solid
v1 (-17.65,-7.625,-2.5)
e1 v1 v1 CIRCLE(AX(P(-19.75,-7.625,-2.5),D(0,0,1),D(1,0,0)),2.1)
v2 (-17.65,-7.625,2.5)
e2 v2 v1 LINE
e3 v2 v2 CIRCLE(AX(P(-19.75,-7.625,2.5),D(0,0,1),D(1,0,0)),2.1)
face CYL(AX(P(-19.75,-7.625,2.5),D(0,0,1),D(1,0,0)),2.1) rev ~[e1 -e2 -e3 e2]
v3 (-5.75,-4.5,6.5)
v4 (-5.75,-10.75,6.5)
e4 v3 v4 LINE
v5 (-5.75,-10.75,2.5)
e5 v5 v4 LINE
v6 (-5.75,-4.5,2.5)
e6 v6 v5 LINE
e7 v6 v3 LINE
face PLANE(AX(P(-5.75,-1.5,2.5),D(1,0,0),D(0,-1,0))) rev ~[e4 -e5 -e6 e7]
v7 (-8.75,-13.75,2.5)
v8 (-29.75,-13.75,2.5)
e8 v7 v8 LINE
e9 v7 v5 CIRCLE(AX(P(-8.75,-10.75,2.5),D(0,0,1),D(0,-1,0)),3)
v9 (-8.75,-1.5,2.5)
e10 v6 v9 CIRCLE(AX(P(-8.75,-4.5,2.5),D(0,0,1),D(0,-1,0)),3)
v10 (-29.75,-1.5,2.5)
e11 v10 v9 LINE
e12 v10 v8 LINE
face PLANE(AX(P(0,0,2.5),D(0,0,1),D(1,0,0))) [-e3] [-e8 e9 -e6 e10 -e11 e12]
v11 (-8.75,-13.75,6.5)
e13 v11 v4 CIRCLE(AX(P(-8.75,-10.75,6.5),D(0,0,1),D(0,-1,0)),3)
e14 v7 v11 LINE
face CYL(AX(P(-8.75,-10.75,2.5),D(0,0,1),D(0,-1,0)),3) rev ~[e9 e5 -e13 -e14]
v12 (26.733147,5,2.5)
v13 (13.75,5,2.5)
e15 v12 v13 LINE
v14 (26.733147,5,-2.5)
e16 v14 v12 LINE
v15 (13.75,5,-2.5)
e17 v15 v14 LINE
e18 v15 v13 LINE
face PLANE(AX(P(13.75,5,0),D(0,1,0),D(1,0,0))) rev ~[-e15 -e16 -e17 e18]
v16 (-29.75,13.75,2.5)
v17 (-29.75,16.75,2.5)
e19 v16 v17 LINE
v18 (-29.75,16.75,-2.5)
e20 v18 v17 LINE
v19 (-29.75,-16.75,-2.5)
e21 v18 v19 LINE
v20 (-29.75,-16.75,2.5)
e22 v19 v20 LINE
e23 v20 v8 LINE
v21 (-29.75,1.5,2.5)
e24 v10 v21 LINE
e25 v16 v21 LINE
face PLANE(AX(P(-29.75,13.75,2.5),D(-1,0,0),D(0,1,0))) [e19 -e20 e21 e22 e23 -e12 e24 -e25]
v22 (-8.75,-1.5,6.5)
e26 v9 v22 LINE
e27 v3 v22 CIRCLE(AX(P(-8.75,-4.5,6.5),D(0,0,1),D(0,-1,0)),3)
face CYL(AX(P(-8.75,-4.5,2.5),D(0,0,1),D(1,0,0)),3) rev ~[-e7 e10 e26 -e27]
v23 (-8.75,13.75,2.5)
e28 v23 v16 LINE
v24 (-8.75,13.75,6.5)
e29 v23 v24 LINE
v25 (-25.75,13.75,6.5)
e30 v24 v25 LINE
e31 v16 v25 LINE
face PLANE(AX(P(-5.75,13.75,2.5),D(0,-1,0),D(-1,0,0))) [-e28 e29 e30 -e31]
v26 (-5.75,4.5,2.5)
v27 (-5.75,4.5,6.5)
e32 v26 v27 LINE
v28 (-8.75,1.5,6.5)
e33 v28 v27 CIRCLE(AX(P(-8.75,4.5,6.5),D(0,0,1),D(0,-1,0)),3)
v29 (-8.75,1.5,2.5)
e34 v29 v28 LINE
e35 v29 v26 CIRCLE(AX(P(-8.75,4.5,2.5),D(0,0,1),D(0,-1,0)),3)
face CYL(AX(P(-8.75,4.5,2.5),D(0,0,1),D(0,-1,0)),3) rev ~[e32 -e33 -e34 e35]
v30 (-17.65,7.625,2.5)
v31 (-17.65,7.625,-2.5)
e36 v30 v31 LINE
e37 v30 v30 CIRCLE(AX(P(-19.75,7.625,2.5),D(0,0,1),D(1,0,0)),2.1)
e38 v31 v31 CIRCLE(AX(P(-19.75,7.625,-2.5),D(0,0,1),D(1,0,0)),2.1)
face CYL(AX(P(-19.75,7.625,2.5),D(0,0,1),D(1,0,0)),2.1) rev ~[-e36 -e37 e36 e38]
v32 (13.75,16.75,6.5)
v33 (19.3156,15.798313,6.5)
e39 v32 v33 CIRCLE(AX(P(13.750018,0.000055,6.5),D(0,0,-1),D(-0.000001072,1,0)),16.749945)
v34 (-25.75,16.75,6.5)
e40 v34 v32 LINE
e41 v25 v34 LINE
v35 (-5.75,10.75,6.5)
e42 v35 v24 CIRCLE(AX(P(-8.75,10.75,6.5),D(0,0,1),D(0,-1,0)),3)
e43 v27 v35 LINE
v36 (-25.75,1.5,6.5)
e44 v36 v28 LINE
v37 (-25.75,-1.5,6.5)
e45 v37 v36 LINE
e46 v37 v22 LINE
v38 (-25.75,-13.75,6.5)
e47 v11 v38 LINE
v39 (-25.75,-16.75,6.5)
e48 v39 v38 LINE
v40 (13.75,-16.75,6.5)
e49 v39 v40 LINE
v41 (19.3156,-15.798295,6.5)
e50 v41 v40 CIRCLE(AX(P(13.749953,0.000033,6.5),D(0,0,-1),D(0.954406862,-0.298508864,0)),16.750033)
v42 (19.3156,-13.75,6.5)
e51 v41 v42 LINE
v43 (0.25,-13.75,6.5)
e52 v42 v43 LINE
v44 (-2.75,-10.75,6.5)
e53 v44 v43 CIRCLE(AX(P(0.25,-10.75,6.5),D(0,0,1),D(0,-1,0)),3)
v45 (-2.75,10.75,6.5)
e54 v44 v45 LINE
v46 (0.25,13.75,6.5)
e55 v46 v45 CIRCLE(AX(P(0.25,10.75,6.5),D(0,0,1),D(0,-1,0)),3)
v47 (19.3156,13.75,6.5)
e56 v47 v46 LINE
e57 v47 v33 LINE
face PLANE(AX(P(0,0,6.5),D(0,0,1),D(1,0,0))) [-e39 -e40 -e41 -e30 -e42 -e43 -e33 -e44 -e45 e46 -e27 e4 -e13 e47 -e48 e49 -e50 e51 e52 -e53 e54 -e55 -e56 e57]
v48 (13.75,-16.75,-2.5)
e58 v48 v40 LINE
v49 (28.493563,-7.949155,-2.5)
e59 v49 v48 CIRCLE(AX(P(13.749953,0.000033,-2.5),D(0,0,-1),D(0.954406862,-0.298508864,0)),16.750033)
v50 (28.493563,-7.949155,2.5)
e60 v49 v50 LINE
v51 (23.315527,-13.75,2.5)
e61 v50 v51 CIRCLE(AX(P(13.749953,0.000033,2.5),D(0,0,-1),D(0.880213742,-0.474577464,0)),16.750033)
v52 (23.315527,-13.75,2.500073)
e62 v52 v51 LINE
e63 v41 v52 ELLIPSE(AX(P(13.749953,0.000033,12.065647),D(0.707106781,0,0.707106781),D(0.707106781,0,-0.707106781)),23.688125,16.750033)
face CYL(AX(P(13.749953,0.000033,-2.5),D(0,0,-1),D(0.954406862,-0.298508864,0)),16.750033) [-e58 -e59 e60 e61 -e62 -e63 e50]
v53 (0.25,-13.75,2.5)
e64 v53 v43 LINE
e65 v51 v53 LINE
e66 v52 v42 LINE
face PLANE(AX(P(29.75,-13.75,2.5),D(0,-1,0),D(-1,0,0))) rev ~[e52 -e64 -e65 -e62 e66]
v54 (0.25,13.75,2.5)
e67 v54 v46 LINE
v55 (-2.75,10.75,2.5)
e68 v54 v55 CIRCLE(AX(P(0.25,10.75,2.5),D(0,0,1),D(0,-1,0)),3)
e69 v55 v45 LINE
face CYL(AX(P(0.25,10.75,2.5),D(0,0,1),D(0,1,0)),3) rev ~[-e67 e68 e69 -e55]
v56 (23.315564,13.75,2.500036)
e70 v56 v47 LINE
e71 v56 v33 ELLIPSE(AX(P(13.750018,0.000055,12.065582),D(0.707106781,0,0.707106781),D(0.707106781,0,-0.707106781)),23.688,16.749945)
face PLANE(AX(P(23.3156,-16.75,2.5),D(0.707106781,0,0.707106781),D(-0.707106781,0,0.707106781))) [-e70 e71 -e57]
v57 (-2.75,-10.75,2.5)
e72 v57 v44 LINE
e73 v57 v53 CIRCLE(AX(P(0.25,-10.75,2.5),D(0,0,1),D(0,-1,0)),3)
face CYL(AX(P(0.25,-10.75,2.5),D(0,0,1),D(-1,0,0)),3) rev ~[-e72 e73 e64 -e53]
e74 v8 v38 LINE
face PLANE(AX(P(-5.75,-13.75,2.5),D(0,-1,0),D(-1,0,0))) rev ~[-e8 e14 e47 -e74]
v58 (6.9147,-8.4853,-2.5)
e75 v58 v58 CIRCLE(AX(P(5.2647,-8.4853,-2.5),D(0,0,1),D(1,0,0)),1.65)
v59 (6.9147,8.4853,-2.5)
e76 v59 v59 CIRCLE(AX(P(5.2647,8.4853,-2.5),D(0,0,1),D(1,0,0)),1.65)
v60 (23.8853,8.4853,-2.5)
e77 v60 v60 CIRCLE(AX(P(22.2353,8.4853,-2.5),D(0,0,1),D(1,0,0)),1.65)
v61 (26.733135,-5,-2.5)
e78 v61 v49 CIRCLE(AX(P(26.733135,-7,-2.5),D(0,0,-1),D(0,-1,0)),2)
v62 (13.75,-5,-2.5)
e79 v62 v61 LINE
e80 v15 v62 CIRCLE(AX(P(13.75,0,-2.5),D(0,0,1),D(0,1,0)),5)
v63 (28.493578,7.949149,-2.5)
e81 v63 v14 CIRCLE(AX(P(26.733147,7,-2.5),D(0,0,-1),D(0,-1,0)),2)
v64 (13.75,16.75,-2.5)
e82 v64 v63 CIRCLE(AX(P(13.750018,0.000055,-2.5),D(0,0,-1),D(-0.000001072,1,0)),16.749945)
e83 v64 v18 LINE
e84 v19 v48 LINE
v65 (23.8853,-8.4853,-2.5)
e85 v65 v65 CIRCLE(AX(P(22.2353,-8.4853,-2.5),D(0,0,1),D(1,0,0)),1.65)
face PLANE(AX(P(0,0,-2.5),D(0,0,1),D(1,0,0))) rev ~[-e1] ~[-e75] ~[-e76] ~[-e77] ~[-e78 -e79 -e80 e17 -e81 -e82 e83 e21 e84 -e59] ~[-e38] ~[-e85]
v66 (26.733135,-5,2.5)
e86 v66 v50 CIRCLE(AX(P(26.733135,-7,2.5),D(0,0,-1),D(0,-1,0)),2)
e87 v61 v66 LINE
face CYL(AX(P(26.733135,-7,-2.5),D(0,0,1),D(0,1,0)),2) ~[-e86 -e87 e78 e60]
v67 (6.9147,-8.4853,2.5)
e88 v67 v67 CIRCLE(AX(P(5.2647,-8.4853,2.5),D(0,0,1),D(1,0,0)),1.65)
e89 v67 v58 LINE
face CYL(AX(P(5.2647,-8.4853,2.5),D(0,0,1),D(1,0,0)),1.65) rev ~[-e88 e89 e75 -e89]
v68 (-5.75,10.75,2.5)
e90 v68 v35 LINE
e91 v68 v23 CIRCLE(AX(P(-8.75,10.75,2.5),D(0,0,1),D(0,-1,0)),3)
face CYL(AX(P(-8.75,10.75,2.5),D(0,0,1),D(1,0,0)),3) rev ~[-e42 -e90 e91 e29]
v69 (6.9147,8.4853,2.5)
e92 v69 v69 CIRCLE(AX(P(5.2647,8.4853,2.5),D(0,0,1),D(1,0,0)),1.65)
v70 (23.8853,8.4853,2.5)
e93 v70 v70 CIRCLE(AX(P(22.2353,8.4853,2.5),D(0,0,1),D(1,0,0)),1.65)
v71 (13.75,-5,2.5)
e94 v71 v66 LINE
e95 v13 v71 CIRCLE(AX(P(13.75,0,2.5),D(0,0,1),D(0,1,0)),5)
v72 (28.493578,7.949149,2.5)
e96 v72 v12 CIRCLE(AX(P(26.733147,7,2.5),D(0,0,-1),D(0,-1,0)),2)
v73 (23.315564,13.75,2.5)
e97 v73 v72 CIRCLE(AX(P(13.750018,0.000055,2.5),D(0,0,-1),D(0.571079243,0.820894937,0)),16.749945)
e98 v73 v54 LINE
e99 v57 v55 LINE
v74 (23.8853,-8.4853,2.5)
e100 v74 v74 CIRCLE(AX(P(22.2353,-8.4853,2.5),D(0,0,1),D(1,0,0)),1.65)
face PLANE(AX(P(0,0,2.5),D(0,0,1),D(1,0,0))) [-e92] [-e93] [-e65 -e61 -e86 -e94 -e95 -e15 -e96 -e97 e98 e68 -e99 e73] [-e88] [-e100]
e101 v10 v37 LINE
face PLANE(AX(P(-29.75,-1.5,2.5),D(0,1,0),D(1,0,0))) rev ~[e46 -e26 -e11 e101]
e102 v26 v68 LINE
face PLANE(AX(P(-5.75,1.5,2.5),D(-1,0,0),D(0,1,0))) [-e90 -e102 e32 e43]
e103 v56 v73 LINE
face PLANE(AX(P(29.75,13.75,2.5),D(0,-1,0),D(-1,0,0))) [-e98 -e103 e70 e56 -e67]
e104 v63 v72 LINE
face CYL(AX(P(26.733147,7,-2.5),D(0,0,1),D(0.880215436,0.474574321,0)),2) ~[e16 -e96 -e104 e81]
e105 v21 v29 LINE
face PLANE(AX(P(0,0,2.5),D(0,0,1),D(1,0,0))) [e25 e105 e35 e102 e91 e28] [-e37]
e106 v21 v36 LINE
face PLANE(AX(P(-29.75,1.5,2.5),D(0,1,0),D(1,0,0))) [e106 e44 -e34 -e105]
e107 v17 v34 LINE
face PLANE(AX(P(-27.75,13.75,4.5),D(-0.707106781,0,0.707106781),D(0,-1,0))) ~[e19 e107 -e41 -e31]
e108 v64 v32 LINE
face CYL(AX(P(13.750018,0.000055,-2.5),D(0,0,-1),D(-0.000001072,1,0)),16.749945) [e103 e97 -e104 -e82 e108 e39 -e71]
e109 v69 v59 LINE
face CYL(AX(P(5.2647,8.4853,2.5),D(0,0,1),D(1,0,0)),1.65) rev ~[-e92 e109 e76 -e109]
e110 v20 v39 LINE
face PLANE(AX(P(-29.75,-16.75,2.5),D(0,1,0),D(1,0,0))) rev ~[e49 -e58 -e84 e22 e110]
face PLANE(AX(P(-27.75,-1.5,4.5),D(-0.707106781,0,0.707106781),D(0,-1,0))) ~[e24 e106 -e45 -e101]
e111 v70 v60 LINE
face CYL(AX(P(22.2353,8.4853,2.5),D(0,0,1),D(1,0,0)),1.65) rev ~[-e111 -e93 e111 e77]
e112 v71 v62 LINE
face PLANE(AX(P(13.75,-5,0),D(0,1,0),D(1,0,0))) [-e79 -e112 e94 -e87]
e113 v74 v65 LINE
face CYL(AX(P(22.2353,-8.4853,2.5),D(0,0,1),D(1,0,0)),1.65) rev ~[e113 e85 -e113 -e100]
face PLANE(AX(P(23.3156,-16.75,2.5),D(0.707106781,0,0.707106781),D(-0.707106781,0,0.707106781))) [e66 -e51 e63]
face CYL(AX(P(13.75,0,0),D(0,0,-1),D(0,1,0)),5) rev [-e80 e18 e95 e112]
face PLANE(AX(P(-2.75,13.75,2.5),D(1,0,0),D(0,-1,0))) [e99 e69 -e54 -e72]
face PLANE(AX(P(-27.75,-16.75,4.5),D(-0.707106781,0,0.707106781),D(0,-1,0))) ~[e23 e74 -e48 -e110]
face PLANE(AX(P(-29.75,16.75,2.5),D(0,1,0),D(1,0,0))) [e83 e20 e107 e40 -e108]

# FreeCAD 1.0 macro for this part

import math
import FreeCAD as App
import Part
import Sketcher


def edges_at(feature, points):
    """Names of the edges that pass closest to the given points."""
    edges = feature.Shape.Edges
    near = lambda p: min(range(len(edges)), key=lambda i: edges[i].distToShape(Part.Vertex(*p))[0])
    return sorted({f"Edge{near(p) + 1}" for p in points})


def add_polygon(sketch, points):
    """Adds a closed chain of lines whose ends are joined by coincident constraints."""
    first, n = sketch.GeometryCount, len(points)
    for a, b in zip(points, points[1:] + points[:1]):
        sketch.addGeometry(Part.LineSegment(App.Vector(*a, 0), App.Vector(*b, 0)), False)
    for i in range(n):
        sketch.addConstraint(Sketcher.Constraint("Coincident", first + i, 2, first + (i + 1) % n, 1))

doc = App.newDocument("Part")
body = doc.addObject("PartDesign::Body", "Body")

# Sketch on XY plane
sketch1 = body.newObject("Sketcher::SketchObject", "Sketch")
sketch1.AttachmentSupport = (doc.getObject("XY_Plane"), [""])
sketch1.MapMode = "FlatFace"
sketch1.addGeometry([
    Part.ArcOfCircle(Part.Circle(App.Vector(14, 0, 0), App.Vector(0, 0, 1), 5), math.radians(90), math.radians(270)),  # 0
    Part.LineSegment(App.Vector(14, 5, 0), App.Vector(30, 5, 0)),  # 1
    Part.LineSegment(App.Vector(30, 5, 0), App.Vector(30, 17, 0)),  # 2
    Part.LineSegment(App.Vector(30, 17, 0), App.Vector(-30, 17, 0)),  # 3
    Part.LineSegment(App.Vector(-30, 17, 0), App.Vector(-30, -17, 0)),  # 4
    Part.LineSegment(App.Vector(-30, -17, 0), App.Vector(30, -17, 0)),  # 5
    Part.LineSegment(App.Vector(30, -17, 0), App.Vector(30, -5, 0)),  # 6
    Part.LineSegment(App.Vector(30, -5, 0), App.Vector(14, -5, 0)),  # 7
], False)
sketch1.addConstraint([
    Sketcher.Constraint("Tangent", 0, 1, 1, 1),
    Sketcher.Constraint("Coincident", 1, 2, 2, 1),
    Sketcher.Constraint("Coincident", 2, 2, 3, 1),
    Sketcher.Constraint("Coincident", 3, 2, 4, 1),
    Sketcher.Constraint("Coincident", 4, 2, 5, 1),
    Sketcher.Constraint("Coincident", 5, 2, 6, 1),
    Sketcher.Constraint("Coincident", 6, 2, 7, 1),
    Sketcher.Constraint("Tangent", 7, 2, 0, 2),
    Sketcher.Constraint("Horizontal", 1),
    Sketcher.Constraint("Vertical", 2),
    Sketcher.Constraint("Horizontal", 3),
    Sketcher.Constraint("Vertical", 4),
    Sketcher.Constraint("Horizontal", 5),
    Sketcher.Constraint("Vertical", 6),
    Sketcher.Constraint("Horizontal", 7),
    Sketcher.Constraint("Symmetric", 2, 2, 4, 2, -1, 1),
    Sketcher.Constraint("Symmetric", 1, 2, 6, 2, -1),
    Sketcher.Constraint("Radius", 0, 5.0),
    Sketcher.Constraint("DistanceX", 1, 1, 1, 2, 16.0),
    Sketcher.Constraint("DistanceY", 4, 2, 4, 1, 33.5),
    Sketcher.Constraint("DistanceX", 3, 2, 0, 1, 43.5),
])
pad1 = body.newObject("PartDesign::Pad", "Pad")
pad1.Profile = sketch1
pad1.Length = 5
pad1.Midplane = True

# Sketch on XY plane
sketch2 = body.newObject("Sketcher::SketchObject", "Sketch001")
sketch2.AttachmentSupport = (doc.getObject("XY_Plane"), [""])
sketch2.MapMode = "FlatFace"
sketch2.AttachmentOffset = App.Placement(App.Vector(0, 0, 2.5), App.Rotation())
sketch2.addGeometry([
    Part.Circle(App.Vector(5.3, 8.5, 0), App.Vector(0, 0, 1), 1.6),
    Part.Circle(App.Vector(5.3, -8.5, 0), App.Vector(0, 0, 1), 1.6),
    Part.Circle(App.Vector(22.2, -8.5, 0), App.Vector(0, 0, 1), 1.6),
    Part.Circle(App.Vector(22.2, 8.5, 0), App.Vector(0, 0, 1), 1.6),
], False)
sketch2.addConstraint([
    Sketcher.Constraint("Equal", 0, 1),
    Sketcher.Constraint("Equal", 1, 2),
    Sketcher.Constraint("Equal", 2, 3),
    Sketcher.Constraint("Symmetric", 0, 3, 1, 3, -1),
    Sketcher.Constraint("Symmetric", 2, 3, 3, 3, -1),
    Sketcher.Constraint("Horizontal", 1, 3, 2, 3),
    Sketcher.Constraint("Diameter", 0, 3.3),
    Sketcher.Constraint("DistanceX", -1, 1, 0, 3, 5.2647),
    Sketcher.Constraint("DistanceY", -1, 1, 0, 3, 8.4853),
    Sketcher.Constraint("DistanceX", -1, 1, 2, 3, 22.2353),
])
pocket1 = body.newObject("PartDesign::Pocket", "Pocket")
pocket1.Profile = sketch2
pocket1.Type = "ThroughAll"

# Sketch on XY plane
sketch3 = body.newObject("Sketcher::SketchObject", "Sketch002")
sketch3.AttachmentSupport = (doc.getObject("XY_Plane"), [""])
sketch3.MapMode = "FlatFace"
sketch3.AttachmentOffset = App.Placement(App.Vector(0, 0, 2.5), App.Rotation())
sketch3.addGeometry([
    Part.Circle(App.Vector(-19.8, 7.6, 0), App.Vector(0, 0, 1), 2.1),
    Part.Circle(App.Vector(-19.8, -7.6, 0), App.Vector(0, 0, 1), 2.1),
], False)
sketch3.addConstraint([
    Sketcher.Constraint("Equal", 0, 1),
    Sketcher.Constraint("Symmetric", 0, 3, 1, 3, -1),
    Sketcher.Constraint("Diameter", 0, 4.2),
    Sketcher.Constraint("DistanceX", 0, 3, -1, 1, 19.75),
    Sketcher.Constraint("DistanceY", 1, 3, 0, 3, 15.25),
])
pocket2 = body.newObject("PartDesign::Pocket", "Pocket001")
pocket2.Profile = sketch3
pocket2.Type = "ThroughAll"

# Sketch on XY plane
sketch4 = body.newObject("Sketcher::SketchObject", "Sketch003")
sketch4.AttachmentSupport = (doc.getObject("XY_Plane"), [""])
sketch4.MapMode = "FlatFace"
sketch4.AttachmentOffset = App.Placement(App.Vector(0, 0, 2.5), App.Rotation())
add_polygon(sketch4, [(29.8, 16.8), (-29.8, 16.8), (-29.8, 13.8), (-5.8, 13.8), (-5.8, 1.5), (-29.8, 1.5), (-29.8, -1.5), (-5.8, -1.5), (-5.8, -13.8), (-29.8, -13.8), (-29.8, -16.8), (29.8, -16.8), (29.8, -13.8), (-2.8, -13.8), (-2.8, 13.8), (29.8, 13.8)])  # lines 0-15
sketch4.addConstraint([
    Sketcher.Constraint("Horizontal", 0),
    Sketcher.Constraint("Vertical", 1),
    Sketcher.Constraint("Horizontal", 2),
    Sketcher.Constraint("Vertical", 3),
    Sketcher.Constraint("Horizontal", 4),
    Sketcher.Constraint("Vertical", 5),
    Sketcher.Constraint("Horizontal", 6),
    Sketcher.Constraint("Vertical", 7),
    Sketcher.Constraint("Horizontal", 8),
    Sketcher.Constraint("Vertical", 9),
    Sketcher.Constraint("Horizontal", 10),
    Sketcher.Constraint("Vertical", 11),
    Sketcher.Constraint("Horizontal", 12),
    Sketcher.Constraint("Vertical", 13),
    Sketcher.Constraint("Horizontal", 14),
    Sketcher.Constraint("Vertical", 15),
    Sketcher.Constraint("Symmetric", 0, 2, 10, 2, -1, 1),
    Sketcher.Constraint("Symmetric", 8, 2, 14, 2, -1, 1),
    Sketcher.Constraint("Symmetric", 8, 2, 11, 2, -2),
    Sketcher.Constraint("Symmetric", 3, 2, 6, 2, -1),
    Sketcher.Constraint("Horizontal", 2, 2, 13, 2),
    Sketcher.Constraint("Vertical", 1, 2, 4, 2),
    Sketcher.Constraint("Equal", 1, 5),
    Sketcher.Constraint("DistanceX", 2, 1, 2, 2, 24.0),
    Sketcher.Constraint("DistanceY", 1, 2, 1, 1, 3.0),
    Sketcher.Constraint("DistanceX", 7, 2, 12, 2, 3.0),
    Sketcher.Constraint("DistanceX", 0, 2, 0, 1, 59.5),
    Sketcher.Constraint("DistanceY", 13, 1, 13, 2, 27.5),
])
pad2 = body.newObject("PartDesign::Pad", "Pad001")
pad2.Profile = sketch4
pad2.Length = 4

# Sketch on XY plane
sketch5 = body.newObject("Sketcher::SketchObject", "Sketch004")
sketch5.AttachmentSupport = (doc.getObject("XY_Plane"), [""])
sketch5.MapMode = "FlatFace"
sketch5.AttachmentOffset = App.Placement(App.Vector(0, 0, -2.5), App.Rotation())
sketch5.addGeometry([
    Part.ArcOfCircle(Part.Circle(App.Vector(13.75, 0, 0), App.Vector(0, 0, 1), 16.75), math.radians(-90), math.radians(-17)),  # 0
    Part.LineSegment(App.Vector(29.736, -5, 0), App.Vector(29.75, -5, 0)),  # 1
    Part.LineSegment(App.Vector(29.75, -5, 0), App.Vector(29.75, -16.75, 0)),  # 2
    Part.LineSegment(App.Vector(29.75, -16.75, 0), App.Vector(13.75, -16.75, 0)),  # 3
    Part.LineSegment(App.Vector(29.75, 5, 0), App.Vector(29.736, 5, 0)),  # 4
    Part.ArcOfCircle(Part.Circle(App.Vector(13.75, 0, 0), App.Vector(0, 0, 1), 16.75), math.radians(17), math.radians(90)),  # 5
    Part.LineSegment(App.Vector(13.75, 16.75, 0), App.Vector(29.75, 16.75, 0)),  # 6
    Part.LineSegment(App.Vector(29.75, 16.75, 0), App.Vector(29.75, 5, 0)),  # 7
], False)
sketch5.addConstraint([
    Sketcher.Constraint("Coincident", 0, 2, 1, 1),
    Sketcher.Constraint("Coincident", 1, 2, 2, 1),
    Sketcher.Constraint("Coincident", 2, 2, 3, 1),
    Sketcher.Constraint("Tangent", 3, 2, 0, 1),
    Sketcher.Constraint("Coincident", 4, 2, 5, 1),
    Sketcher.Constraint("Tangent", 5, 2, 6, 1),
    Sketcher.Constraint("Coincident", 6, 2, 7, 1),
    Sketcher.Constraint("Coincident", 7, 2, 4, 1),
    Sketcher.Constraint("Horizontal", 1),
    Sketcher.Constraint("Vertical", 2),
    Sketcher.Constraint("Horizontal", 3),
    Sketcher.Constraint("Horizontal", 4),
    Sketcher.Constraint("Horizontal", 6),
    Sketcher.Constraint("Vertical", 7),
    Sketcher.Constraint("Coincident", 5, 3, 0, 3),
    Sketcher.Constraint("Equal", 0, 5),
    Sketcher.Constraint("Symmetric", 0, 2, 4, 2, -1),
    Sketcher.Constraint("Vertical", 2, 2, 6, 2),
    Sketcher.Constraint("DistanceX", 3, 2, 3, 1, 16.0),
    Sketcher.Constraint("Radius", 0, 16.75),
    Sketcher.Constraint("DistanceY", 0, 2, -1, 1, 5.0),
    Sketcher.Constraint("DistanceX", -1, 1, 0, 3, 13.75),
])
pocket3 = body.newObject("PartDesign::Pocket", "Pocket002")
pocket3.Profile = sketch5
pocket3.Type = "ThroughAll"
pocket3.Reversed = True
doc.recompute()

fillet = body.newObject("PartDesign::Fillet", "Fillet")
fillet.Base = (pocket3, edges_at(pocket3, [(29.736, -5, 0), (29.736, 5, 0)]))
fillet.Radius = 2
doc.recompute()

chamfer = body.newObject("PartDesign::Chamfer", "Chamfer")
chamfer.Base = (fillet, edges_at(fillet, [(-29.75, 15.25, 6.5), (-29.75, 0, 6.5), (-29.75, -15.25, 6.5)]))
chamfer.Size = 4

# Sketch on XZ plane
sketch6 = body.newObject("Sketcher::SketchObject", "Sketch005")
sketch6.AttachmentSupport = (doc.getObject("XZ_Plane"), [""])
sketch6.MapMode = "FlatFace"
sketch6.AttachmentOffset = App.Placement(App.Vector(0, 0, 16.75), App.Rotation())
add_polygon(sketch6, [(19.3, 6.5), (23.3, 2.5), (23.3, 6.5)])  # lines 0-2
sketch6.addConstraint([
    Sketcher.Constraint("Vertical", 1),
    Sketcher.Constraint("Horizontal", 2),
    Sketcher.Constraint("Equal", 2, 1),
    Sketcher.Constraint("DistanceX", 2, 2, 2, 1, 4.0),
    Sketcher.Constraint("DistanceY", -1, 1, 0, 2, 2.5),
    Sketcher.Constraint("DistanceX", -1, 1, 0, 2, 23.3156),
])
pocket4 = body.newObject("PartDesign::Pocket", "Pocket003")
pocket4.Profile = sketch6
pocket4.Type = "ThroughAll"
doc.recompute()

fillet2 = body.newObject("PartDesign::Fillet", "Fillet001")
fillet2.Base = (pocket4, edges_at(pocket4, [
    (-2.75, -13.75, 4.5),
    (-5.75, -13.75, 4.5),
    (-2.75, 13.75, 4.5),
    (-5.75, -1.5, 4.5),
    (-5.75, 13.75, 4.5),
    (-5.75, 1.5, 4.5),
]))
fillet2.Radius = 3

doc.recompute()
